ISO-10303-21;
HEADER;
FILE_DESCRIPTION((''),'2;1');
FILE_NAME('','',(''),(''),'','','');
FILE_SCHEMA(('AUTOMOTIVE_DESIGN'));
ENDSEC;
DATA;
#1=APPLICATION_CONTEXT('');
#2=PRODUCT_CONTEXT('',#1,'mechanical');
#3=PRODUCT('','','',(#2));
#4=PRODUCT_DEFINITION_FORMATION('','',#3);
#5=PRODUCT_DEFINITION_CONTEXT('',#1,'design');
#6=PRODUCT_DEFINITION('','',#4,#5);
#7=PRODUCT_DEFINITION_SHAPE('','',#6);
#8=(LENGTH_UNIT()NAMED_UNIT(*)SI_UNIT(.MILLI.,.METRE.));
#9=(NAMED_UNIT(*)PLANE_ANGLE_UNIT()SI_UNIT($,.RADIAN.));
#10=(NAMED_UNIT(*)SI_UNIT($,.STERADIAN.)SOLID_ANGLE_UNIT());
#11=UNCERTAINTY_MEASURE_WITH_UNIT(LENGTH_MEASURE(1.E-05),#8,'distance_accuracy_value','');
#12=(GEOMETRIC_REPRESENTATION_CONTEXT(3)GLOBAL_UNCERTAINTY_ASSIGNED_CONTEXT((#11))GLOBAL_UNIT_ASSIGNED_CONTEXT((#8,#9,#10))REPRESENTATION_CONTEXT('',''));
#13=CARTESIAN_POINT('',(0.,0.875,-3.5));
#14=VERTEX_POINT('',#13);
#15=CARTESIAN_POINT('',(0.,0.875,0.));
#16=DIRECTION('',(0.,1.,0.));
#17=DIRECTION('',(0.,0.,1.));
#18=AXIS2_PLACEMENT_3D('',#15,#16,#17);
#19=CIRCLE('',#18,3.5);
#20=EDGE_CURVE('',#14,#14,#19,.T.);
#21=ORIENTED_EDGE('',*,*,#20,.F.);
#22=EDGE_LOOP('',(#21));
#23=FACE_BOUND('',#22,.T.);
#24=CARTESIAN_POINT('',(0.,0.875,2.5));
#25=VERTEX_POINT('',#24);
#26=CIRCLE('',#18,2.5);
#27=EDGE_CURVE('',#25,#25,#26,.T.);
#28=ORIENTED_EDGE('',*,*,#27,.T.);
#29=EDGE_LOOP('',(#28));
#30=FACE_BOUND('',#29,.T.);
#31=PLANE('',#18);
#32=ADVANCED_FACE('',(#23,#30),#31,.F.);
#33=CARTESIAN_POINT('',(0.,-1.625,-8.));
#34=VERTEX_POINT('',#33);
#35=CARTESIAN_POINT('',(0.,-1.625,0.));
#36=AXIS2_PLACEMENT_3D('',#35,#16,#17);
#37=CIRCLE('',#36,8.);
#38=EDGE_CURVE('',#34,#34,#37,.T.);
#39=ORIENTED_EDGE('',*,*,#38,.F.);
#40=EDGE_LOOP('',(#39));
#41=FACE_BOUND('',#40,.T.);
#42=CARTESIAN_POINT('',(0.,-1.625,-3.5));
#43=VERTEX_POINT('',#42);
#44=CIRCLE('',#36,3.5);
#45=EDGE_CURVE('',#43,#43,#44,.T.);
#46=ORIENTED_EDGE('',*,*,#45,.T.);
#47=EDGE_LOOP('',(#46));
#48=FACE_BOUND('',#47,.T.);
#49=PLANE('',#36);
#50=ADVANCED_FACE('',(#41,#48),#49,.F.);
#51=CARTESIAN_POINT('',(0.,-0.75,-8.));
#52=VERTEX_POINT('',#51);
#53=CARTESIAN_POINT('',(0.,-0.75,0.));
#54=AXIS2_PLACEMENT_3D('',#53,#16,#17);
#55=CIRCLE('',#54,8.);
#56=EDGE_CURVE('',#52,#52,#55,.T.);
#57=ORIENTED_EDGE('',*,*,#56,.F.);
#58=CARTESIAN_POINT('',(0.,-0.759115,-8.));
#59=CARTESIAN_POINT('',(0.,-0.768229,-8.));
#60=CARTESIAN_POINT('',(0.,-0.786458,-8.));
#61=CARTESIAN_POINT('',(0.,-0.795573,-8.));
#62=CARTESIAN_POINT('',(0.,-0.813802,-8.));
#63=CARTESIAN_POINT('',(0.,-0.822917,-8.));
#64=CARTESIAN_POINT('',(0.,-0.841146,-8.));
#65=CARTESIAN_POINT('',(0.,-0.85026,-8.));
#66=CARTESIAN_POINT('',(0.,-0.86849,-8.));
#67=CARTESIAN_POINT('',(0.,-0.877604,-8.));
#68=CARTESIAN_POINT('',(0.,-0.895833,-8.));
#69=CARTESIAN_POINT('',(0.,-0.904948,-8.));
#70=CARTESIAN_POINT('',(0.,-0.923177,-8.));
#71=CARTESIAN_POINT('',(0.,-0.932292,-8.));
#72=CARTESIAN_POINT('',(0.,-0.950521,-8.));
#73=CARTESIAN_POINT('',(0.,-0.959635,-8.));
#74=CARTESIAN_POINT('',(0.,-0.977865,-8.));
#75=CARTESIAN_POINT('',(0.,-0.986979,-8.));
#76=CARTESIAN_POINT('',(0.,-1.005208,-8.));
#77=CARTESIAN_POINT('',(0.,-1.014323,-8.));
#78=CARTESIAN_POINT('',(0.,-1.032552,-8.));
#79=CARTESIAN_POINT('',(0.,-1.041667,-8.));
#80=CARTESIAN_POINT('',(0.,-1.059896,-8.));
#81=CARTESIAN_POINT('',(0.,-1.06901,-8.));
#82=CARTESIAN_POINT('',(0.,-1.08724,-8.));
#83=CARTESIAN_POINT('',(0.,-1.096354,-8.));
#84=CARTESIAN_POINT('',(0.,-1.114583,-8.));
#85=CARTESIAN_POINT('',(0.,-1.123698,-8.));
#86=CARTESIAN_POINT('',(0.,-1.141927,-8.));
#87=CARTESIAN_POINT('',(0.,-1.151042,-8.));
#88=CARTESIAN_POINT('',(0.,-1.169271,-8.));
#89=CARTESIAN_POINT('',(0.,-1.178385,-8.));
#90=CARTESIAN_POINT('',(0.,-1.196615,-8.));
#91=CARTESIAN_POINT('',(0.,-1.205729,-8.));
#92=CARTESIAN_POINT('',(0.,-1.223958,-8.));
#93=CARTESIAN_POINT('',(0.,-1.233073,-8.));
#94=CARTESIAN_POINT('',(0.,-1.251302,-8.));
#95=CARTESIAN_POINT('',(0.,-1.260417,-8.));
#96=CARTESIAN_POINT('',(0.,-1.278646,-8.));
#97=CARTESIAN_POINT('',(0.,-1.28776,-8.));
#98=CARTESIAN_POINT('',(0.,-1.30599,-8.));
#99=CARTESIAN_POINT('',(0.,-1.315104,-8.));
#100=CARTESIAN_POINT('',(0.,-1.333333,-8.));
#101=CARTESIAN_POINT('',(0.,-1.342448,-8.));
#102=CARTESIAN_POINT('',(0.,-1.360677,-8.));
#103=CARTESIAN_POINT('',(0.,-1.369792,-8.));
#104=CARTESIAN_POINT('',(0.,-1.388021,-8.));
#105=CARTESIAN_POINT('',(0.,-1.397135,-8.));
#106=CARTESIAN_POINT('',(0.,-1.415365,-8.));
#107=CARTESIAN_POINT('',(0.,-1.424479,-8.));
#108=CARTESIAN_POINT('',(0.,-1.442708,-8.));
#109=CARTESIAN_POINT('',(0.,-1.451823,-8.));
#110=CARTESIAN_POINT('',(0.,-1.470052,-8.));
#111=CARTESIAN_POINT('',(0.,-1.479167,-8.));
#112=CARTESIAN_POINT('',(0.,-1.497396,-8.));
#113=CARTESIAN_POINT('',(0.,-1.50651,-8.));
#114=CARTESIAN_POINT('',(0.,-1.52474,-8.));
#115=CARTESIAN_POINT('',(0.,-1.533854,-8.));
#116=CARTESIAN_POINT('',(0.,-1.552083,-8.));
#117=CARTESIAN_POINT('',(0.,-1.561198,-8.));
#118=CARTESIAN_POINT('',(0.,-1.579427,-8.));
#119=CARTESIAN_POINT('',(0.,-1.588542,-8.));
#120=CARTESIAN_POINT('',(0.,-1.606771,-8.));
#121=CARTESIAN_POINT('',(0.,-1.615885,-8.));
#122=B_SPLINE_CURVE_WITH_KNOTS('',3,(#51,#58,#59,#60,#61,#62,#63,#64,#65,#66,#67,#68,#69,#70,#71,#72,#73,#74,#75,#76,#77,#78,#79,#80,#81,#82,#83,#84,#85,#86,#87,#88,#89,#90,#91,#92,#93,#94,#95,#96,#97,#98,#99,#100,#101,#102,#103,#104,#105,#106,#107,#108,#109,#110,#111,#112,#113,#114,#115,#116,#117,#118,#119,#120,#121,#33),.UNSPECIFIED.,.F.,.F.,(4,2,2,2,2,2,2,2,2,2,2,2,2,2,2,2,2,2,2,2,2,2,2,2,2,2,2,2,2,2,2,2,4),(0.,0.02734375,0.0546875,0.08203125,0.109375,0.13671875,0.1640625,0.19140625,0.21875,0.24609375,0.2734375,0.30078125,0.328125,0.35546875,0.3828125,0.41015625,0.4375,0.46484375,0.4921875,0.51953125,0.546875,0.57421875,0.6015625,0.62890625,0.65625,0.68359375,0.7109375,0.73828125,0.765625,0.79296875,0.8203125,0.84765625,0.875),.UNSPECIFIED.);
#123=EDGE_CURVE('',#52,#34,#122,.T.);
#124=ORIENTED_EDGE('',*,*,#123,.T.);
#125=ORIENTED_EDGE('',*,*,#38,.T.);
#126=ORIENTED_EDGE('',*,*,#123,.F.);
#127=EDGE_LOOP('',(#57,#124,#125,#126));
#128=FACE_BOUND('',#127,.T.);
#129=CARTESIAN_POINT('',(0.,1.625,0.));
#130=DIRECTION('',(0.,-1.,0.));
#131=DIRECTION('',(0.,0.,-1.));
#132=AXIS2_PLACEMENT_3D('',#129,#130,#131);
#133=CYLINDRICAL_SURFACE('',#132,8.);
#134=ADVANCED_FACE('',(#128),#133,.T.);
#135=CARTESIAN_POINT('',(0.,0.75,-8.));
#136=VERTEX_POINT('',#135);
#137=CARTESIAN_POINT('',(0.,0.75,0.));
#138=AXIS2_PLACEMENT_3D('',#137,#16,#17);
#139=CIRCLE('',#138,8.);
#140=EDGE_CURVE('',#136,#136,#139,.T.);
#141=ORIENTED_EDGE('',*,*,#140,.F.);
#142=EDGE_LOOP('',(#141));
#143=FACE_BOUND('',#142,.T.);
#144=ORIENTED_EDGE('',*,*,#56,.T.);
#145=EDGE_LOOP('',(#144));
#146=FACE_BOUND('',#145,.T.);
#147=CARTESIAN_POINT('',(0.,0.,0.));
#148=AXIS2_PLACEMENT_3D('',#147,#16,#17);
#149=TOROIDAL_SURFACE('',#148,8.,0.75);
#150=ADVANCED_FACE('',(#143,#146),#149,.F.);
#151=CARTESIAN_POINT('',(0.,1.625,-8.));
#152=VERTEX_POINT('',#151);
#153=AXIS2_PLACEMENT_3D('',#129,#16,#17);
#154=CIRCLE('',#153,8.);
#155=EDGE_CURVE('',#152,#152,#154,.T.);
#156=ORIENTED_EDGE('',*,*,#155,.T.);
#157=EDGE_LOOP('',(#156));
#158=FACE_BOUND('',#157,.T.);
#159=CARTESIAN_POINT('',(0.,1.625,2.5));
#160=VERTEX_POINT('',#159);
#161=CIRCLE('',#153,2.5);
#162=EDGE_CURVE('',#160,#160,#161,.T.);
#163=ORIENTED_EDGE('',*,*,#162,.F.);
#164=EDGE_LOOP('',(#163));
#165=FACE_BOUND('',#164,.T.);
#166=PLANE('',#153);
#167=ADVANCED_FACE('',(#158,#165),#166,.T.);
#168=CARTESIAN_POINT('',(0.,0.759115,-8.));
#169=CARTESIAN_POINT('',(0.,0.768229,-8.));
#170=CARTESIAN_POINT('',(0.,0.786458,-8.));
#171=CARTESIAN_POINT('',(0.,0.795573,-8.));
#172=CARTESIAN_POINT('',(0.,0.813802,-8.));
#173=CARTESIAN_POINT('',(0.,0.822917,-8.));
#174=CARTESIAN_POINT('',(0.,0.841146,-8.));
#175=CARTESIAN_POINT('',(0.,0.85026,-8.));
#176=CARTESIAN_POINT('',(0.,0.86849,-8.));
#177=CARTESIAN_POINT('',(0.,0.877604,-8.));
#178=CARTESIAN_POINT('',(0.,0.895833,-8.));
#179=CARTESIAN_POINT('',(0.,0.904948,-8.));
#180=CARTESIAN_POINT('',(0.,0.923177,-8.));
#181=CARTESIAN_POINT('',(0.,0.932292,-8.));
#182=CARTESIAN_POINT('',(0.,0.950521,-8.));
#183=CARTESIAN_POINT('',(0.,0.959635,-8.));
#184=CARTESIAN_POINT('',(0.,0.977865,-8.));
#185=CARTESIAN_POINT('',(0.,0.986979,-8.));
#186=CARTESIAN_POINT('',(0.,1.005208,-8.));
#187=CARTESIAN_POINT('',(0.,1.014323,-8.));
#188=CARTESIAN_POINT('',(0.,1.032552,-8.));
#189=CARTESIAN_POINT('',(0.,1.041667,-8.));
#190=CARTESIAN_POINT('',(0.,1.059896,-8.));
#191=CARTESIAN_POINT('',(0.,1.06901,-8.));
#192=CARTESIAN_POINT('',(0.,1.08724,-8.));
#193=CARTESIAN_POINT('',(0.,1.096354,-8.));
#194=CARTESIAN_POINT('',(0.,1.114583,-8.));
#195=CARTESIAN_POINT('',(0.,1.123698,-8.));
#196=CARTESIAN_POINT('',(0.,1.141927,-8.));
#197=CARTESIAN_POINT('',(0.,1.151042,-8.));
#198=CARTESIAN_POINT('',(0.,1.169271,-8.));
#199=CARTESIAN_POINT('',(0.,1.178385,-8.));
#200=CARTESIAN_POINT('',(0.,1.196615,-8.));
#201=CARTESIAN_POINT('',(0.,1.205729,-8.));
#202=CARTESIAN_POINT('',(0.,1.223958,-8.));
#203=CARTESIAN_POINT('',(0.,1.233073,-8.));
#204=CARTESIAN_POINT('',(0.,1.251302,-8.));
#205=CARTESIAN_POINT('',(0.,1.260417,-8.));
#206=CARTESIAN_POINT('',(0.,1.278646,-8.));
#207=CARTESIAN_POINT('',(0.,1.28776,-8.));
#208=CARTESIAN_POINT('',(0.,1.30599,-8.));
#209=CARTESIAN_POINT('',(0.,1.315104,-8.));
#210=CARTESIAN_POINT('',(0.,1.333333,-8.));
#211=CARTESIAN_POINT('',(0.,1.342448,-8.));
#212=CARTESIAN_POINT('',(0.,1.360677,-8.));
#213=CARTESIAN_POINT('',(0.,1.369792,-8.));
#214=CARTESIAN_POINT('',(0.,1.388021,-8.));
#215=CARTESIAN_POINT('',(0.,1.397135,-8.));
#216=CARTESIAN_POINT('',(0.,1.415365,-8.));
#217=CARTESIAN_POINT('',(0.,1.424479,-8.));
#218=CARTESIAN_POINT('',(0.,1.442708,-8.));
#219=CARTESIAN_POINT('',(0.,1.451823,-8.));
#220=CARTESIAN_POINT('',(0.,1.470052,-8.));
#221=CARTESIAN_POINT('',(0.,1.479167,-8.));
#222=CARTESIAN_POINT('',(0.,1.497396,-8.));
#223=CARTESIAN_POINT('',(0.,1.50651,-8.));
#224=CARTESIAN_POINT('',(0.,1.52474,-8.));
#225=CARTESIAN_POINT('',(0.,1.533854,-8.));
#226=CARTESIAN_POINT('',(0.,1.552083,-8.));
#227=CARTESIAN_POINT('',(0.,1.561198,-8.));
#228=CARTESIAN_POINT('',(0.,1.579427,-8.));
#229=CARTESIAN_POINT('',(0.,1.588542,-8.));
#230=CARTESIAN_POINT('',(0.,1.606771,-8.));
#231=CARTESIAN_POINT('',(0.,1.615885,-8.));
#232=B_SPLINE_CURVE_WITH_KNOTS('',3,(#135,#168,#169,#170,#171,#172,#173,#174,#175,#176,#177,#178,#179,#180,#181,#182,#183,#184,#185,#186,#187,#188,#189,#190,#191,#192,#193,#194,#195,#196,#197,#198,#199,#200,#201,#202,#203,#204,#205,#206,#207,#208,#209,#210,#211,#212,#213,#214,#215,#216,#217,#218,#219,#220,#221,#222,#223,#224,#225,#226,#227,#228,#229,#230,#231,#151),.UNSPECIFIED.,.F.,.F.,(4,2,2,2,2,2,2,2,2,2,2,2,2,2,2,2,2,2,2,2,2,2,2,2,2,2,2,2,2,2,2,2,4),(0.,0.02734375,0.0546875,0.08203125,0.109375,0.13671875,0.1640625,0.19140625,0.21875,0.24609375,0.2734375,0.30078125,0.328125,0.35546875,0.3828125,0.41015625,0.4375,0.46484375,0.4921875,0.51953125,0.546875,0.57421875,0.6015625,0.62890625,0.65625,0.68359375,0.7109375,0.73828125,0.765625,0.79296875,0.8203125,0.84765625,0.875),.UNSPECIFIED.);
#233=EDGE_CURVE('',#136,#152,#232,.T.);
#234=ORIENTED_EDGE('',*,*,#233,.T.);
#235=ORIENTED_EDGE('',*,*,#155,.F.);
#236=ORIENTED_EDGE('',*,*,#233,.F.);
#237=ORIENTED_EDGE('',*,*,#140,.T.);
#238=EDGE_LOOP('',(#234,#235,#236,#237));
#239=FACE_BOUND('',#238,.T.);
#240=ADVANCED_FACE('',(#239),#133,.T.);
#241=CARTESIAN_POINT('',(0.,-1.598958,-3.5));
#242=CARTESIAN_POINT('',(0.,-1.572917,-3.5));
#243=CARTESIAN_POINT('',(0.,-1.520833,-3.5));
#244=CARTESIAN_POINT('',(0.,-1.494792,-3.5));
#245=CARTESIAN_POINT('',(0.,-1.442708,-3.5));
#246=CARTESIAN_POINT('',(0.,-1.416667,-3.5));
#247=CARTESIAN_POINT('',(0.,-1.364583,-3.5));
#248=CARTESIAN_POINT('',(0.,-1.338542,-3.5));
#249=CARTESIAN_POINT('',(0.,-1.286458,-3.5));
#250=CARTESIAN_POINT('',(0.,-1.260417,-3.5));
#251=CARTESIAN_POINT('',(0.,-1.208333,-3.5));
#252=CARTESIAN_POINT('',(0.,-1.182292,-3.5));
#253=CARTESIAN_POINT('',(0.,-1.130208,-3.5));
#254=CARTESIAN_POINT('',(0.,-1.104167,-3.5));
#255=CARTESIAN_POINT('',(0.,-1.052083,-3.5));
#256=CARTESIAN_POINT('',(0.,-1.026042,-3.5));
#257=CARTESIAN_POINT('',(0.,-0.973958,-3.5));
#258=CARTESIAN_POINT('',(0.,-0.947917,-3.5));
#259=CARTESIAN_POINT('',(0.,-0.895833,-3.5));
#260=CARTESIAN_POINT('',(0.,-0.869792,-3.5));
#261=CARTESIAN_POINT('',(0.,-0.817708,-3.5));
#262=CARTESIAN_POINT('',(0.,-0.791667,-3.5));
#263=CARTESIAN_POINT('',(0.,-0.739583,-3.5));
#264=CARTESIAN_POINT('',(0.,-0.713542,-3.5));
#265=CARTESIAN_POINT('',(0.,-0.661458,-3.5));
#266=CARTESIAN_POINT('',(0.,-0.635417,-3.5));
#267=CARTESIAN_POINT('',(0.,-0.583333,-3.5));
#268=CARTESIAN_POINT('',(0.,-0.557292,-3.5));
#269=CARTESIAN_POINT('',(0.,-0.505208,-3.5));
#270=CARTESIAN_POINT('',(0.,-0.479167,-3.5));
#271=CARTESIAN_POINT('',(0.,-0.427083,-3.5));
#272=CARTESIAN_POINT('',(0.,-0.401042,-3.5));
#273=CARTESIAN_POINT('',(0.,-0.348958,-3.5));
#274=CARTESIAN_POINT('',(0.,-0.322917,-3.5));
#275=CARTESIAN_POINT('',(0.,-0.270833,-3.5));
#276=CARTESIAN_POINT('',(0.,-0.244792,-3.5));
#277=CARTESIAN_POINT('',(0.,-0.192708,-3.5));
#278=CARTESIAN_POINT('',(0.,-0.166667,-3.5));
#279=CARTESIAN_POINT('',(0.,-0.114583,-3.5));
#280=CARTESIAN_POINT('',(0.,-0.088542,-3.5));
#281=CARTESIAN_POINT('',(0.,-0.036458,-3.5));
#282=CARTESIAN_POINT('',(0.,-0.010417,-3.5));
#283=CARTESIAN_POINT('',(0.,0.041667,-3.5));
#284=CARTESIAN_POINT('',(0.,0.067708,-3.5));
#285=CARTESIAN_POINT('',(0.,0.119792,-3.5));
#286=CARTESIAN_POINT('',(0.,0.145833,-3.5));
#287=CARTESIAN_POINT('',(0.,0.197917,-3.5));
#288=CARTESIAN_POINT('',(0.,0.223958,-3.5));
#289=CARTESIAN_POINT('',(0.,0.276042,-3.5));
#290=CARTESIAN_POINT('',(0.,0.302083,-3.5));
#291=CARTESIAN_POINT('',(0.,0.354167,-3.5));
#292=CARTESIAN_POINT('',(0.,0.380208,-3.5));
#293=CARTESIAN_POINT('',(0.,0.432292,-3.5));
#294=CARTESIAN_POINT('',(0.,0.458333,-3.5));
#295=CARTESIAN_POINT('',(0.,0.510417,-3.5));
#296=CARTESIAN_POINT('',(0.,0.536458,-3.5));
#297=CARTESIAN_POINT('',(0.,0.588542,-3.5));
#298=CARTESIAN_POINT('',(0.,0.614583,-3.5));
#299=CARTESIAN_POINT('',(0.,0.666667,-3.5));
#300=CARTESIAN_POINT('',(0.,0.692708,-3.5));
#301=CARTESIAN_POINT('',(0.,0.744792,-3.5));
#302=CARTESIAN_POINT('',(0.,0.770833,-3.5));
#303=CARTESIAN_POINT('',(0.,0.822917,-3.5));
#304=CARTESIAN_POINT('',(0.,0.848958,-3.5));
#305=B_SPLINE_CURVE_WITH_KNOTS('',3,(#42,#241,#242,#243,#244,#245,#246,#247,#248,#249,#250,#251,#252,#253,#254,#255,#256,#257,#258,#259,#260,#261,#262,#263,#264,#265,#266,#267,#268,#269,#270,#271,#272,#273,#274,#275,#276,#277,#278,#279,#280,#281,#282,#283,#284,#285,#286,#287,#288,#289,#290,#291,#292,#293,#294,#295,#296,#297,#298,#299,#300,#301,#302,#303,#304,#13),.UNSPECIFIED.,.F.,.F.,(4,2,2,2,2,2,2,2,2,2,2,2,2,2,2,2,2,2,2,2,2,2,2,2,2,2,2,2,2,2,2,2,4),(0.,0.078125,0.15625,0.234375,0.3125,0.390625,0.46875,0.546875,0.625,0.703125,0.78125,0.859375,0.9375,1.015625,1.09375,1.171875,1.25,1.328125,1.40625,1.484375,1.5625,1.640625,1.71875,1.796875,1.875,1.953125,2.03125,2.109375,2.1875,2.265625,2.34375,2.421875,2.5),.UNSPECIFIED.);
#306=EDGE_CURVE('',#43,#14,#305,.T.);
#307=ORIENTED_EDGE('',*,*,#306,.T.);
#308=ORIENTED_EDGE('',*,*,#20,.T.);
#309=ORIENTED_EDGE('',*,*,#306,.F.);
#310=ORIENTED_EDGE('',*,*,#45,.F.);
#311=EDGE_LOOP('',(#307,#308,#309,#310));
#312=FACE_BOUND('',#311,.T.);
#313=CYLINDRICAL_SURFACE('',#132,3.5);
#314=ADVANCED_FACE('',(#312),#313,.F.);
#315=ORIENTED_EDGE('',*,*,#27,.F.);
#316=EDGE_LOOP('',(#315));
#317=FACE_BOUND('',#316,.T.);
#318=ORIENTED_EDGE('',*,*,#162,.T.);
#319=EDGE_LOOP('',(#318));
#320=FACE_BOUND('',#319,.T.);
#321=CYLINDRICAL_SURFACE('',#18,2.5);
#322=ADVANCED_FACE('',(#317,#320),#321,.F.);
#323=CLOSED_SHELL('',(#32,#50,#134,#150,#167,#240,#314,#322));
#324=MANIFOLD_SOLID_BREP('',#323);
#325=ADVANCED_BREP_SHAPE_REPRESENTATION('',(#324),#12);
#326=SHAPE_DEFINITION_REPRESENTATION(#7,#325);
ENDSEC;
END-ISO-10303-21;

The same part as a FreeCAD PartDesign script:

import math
import FreeCAD as App
import Part
import Sketcher
from FreeCAD import Vector

doc = App.newDocument("Part")
body = doc.addObject("PartDesign::Body", "Body")

sketch1 = body.newObject("Sketcher::SketchObject", "Sketch")
sketch1.AttachmentSupport = (doc.getObject("XZ_Plane"), [""])
sketch1.MapMode = "FlatFace"
sketch1.addGeometry(Part.Circle(Vector(0, 0, 0), Vector(0, 0, 1), 8), False)
sketch1.addGeometry(Part.Circle(Vector(0, 0, 0), Vector(0, 0, 1), 3.5), False)
sketch1.addConstraint(Sketcher.Constraint("Coincident", 0, 3, -1, 1))
sketch1.addConstraint(Sketcher.Constraint("Coincident", 1, 3, -1, 1))
sketch1.addConstraint(Sketcher.Constraint("Diameter", 0, 16.0))
sketch1.addConstraint(Sketcher.Constraint("Diameter", 1, 7.0))
pad1 = body.newObject("PartDesign::Pad", "Pad")
pad1.Profile = sketch1
pad1.Length = 3.25
pad1.Midplane = True

sketch2 = body.newObject("Sketcher::SketchObject", "Sketch001")
sketch2.AttachmentSupport = (doc.getObject("YZ_Plane"), [""])
sketch2.MapMode = "FlatFace"
sketch2.addGeometry(Part.LineSegment(Vector(0.8, 8, 0), Vector(-0.8, 8, 0)), False)
sketch2.addGeometry(Part.ArcOfCircle(Part.Circle(Vector(0, 8, 0), Vector(0, 0, 1), 0.8), math.radians(180), math.radians(360)), False)
sketch2.addConstraint(Sketcher.Constraint("Coincident", 0, 1, 1, 2))
sketch2.addConstraint(Sketcher.Constraint("Coincident", 1, 1, 0, 2))
sketch2.addConstraint(Sketcher.Constraint("Horizontal", 0))
sketch2.addConstraint(Sketcher.Constraint("PointOnObject", 1, 3, -2))
sketch2.addConstraint(Sketcher.Constraint("Horizontal", 1, 3, 0, 1))
sketch2.addConstraint(Sketcher.Constraint("Radius", 1, 0.75))
sketch2.addConstraint(Sketcher.Constraint("DistanceY", -1, 1, 1, 3, 8.0))
groove = body.newObject("PartDesign::Groove", "Groove")
groove.Profile = sketch2
groove.ReferenceAxis = (sketch2, ["H_Axis"])
groove.Angle = 360

sketch3 = body.newObject("Sketcher::SketchObject", "Sketch002")
sketch3.AttachmentSupport = (doc.getObject("XZ_Plane"), [""])
sketch3.MapMode = "FlatFace"
sketch3.AttachmentOffset = App.Placement(Vector(0, 0, -0.875), App.Rotation())
sketch3.addGeometry(Part.Circle(Vector(0, 0, 0), Vector(0, 0, 1), 3.5), False)
sketch3.addGeometry(Part.Circle(Vector(0, 0, 0), Vector(0, 0, 1), 2.5), False)
sketch3.addConstraint(Sketcher.Constraint("Coincident", 0, 3, -1, 1))
sketch3.addConstraint(Sketcher.Constraint("Coincident", 1, 3, -1, 1))
sketch3.addConstraint(Sketcher.Constraint("Diameter", 0, 7.0))
sketch3.addConstraint(Sketcher.Constraint("Diameter", 1, 5.0))
pad2 = body.newObject("PartDesign::Pad", "Pad001")
pad2.Profile = sketch3
pad2.Length = 0.75
pad2.Reversed = True

doc.recompute()
